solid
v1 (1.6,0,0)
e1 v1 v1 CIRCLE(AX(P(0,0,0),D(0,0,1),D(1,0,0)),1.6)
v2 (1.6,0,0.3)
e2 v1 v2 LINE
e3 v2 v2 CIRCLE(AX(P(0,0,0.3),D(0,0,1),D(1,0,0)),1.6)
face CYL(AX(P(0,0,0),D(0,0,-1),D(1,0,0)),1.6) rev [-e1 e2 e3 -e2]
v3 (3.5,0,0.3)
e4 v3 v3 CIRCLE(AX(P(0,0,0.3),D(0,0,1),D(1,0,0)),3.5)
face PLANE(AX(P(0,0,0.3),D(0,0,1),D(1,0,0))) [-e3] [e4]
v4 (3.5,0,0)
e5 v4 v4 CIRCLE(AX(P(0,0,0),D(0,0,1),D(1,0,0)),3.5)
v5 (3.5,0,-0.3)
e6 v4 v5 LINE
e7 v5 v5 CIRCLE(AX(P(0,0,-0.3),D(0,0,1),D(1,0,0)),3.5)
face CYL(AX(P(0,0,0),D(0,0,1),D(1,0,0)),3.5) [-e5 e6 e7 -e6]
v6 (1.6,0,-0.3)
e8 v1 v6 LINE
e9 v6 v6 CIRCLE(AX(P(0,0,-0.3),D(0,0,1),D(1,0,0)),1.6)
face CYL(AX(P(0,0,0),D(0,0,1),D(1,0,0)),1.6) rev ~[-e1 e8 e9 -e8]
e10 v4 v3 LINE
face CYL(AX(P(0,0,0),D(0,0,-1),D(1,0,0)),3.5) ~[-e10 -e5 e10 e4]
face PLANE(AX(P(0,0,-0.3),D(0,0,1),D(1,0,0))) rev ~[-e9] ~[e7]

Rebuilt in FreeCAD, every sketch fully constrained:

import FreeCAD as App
import Part
import Sketcher
from FreeCAD import Vector

doc = App.newDocument("Part")
body = doc.addObject("PartDesign::Body", "Body")

# Sketch on XY plane
sketch1 = body.newObject("Sketcher::SketchObject", "Sketch")
sketch1.AttachmentSupport = (doc.getObject("XY_Plane"), [""])
sketch1.MapMode = "FlatFace"
sketch1.addGeometry(Part.Circle(Vector(0, 0, 0), Vector(0, 0, 1), 3.5), False)
sketch1.addGeometry(Part.Circle(Vector(0, 0, 0), Vector(0, 0, 1), 1.6), False)
sketch1.addConstraint(Sketcher.Constraint("Coincident", 0, 3, -1, 1))
sketch1.addConstraint(Sketcher.Constraint("Coincident", 1, 3, -1, 1))
sketch1.addConstraint(Sketcher.Constraint("Diameter", 0, 7.0))
sketch1.addConstraint(Sketcher.Constraint("Diameter", 1, 3.2))
pad1 = body.newObject("PartDesign::Pad", "Pad")
pad1.Profile = sketch1
pad1.Length = 0.6
pad1.Midplane = True

doc.recompute()
